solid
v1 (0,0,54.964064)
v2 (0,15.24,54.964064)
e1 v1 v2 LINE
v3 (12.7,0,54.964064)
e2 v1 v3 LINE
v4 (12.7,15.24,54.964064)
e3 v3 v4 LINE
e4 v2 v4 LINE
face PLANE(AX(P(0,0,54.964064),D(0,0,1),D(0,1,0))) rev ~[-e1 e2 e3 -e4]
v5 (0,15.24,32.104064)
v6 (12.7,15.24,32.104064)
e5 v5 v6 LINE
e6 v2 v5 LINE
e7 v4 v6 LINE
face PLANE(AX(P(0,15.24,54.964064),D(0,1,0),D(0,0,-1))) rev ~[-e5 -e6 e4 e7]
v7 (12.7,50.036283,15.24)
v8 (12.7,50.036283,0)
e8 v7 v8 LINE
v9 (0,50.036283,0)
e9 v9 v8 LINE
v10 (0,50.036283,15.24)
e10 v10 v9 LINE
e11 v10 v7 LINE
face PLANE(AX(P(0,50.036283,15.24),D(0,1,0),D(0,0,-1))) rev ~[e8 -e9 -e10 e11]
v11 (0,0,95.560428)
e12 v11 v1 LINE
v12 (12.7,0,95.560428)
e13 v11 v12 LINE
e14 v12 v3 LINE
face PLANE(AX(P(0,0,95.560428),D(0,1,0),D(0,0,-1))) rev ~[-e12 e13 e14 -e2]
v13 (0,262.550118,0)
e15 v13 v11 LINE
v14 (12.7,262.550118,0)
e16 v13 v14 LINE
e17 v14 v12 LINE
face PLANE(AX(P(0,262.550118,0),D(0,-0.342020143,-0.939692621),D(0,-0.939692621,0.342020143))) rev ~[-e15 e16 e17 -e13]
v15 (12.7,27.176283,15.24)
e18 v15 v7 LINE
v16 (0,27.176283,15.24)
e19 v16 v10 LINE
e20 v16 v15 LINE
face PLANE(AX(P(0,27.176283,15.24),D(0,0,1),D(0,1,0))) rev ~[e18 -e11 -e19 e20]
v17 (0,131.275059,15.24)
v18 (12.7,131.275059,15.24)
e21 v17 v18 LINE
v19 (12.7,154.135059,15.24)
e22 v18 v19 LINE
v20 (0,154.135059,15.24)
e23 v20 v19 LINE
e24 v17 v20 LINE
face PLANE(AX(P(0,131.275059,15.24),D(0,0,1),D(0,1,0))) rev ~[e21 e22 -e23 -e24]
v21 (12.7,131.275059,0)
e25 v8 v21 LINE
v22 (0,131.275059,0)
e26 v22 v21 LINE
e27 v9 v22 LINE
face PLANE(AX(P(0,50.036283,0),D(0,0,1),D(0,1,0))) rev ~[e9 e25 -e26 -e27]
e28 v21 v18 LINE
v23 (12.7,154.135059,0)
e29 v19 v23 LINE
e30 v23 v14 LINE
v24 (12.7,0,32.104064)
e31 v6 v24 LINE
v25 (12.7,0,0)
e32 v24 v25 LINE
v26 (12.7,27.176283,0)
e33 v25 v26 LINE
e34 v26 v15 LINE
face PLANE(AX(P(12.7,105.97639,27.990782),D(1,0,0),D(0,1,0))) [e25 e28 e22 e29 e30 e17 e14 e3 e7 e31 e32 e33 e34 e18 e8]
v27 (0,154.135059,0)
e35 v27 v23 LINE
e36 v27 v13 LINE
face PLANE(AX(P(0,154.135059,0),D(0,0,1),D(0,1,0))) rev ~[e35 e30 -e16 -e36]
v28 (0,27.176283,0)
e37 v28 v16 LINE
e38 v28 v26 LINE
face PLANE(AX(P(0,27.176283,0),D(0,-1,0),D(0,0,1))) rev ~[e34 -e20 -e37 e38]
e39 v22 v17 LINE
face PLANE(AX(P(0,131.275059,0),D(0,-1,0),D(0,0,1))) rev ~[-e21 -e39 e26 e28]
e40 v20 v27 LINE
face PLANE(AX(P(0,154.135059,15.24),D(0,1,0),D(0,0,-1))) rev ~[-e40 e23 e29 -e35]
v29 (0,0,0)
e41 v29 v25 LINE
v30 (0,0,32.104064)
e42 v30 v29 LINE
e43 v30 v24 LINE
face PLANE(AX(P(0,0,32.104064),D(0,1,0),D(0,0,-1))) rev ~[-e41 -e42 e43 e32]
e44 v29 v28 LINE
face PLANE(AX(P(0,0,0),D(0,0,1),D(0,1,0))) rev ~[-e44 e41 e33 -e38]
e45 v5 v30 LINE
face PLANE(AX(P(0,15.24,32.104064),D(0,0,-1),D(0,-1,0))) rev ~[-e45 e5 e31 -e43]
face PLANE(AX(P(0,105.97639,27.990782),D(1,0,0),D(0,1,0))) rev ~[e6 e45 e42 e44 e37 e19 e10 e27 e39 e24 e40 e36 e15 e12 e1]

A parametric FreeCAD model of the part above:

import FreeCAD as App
import Part
import Sketcher
Q = App.Units.Quantity


def add_polygon(sketch, points):
    """Adds a closed chain of lines whose ends are joined by coincident constraints."""
    first, n = sketch.GeometryCount, len(points)
    for a, b in zip(points, points[1:] + points[:1]):
        sketch.addGeometry(Part.LineSegment(App.Vector(*a, 0), App.Vector(*b, 0)), False)
    for i in range(n):
        sketch.addConstraint(Sketcher.Constraint("Coincident", first + i, 2, first + (i + 1) % n, 1))

doc = App.newDocument("Part")
body = doc.addObject("PartDesign::Body", "Body")

# Sketch on YZ plane
sketch1 = body.newObject("Sketcher::SketchObject", "Sketch")
sketch1.AttachmentSupport = (doc.getObject("YZ_Plane"), [""])
sketch1.MapMode = "FlatFace"
add_polygon(sketch1, [(0, 32), (0, 0), (27, 0), (27, 15), (50, 15), (50, 0), (131, 0), (131, 15), (154, 15), (154, 0), (263, 0), (0, 96), (0, 55), (15, 55), (15, 32)])  # lines 0-14
sketch1.addConstraint([
    Sketcher.Constraint("Vertical", 0),
    Sketcher.Constraint("Horizontal", 1),
    Sketcher.Constraint("Vertical", 2),
    Sketcher.Constraint("Horizontal", 3),
    Sketcher.Constraint("Vertical", 4),
    Sketcher.Constraint("Horizontal", 5),
    Sketcher.Constraint("Vertical", 6),
    Sketcher.Constraint("Horizontal", 7),
    Sketcher.Constraint("Vertical", 8),
    Sketcher.Constraint("Horizontal", 9),
    Sketcher.Constraint("Vertical", 11),
    Sketcher.Constraint("Horizontal", 12),
    Sketcher.Constraint("Vertical", 13),
    Sketcher.Constraint("Horizontal", 14),
    Sketcher.Constraint("Coincident", 0, 2, -1, 1),
    Sketcher.Constraint("PointOnObject", 4, 2, -1),
    Sketcher.Constraint("PointOnObject", 8, 2, -1),
    Sketcher.Constraint("PointOnObject", 10, 2, -2),
    Sketcher.Constraint("Horizontal", 3, 2, 6, 2),
    Sketcher.Constraint("Equal", 3, 7),
    Sketcher.Constraint("Equal", 14, 2),
    Sketcher.Constraint("Equal", 7, 13),
    Sketcher.Constraint("Distance", 10, Q("11 in")),
    Sketcher.Constraint("DistanceX", 3, 1, 3, 2, Q("0.9 in")),
    Sketcher.Constraint("DistanceX", 12, 1, 12, 2, Q("0.6 in")),
    Sketcher.Constraint("Angle", 10, Q("160 deg")),
    Sketcher.Constraint("DistanceX", 9, 1, 9, 2, 108.415059),
    Sketcher.Constraint("DistanceX", 1, 1, 1, 2, 27.176283),
    Sketcher.Constraint("DistanceY", 0, 2, 0, 1, 32.104064),
])
pad1 = body.newObject("PartDesign::Pad", "Pad")
pad1.Profile = sketch1
pad1.Length = Q("0.5 in")

doc.recompute()
